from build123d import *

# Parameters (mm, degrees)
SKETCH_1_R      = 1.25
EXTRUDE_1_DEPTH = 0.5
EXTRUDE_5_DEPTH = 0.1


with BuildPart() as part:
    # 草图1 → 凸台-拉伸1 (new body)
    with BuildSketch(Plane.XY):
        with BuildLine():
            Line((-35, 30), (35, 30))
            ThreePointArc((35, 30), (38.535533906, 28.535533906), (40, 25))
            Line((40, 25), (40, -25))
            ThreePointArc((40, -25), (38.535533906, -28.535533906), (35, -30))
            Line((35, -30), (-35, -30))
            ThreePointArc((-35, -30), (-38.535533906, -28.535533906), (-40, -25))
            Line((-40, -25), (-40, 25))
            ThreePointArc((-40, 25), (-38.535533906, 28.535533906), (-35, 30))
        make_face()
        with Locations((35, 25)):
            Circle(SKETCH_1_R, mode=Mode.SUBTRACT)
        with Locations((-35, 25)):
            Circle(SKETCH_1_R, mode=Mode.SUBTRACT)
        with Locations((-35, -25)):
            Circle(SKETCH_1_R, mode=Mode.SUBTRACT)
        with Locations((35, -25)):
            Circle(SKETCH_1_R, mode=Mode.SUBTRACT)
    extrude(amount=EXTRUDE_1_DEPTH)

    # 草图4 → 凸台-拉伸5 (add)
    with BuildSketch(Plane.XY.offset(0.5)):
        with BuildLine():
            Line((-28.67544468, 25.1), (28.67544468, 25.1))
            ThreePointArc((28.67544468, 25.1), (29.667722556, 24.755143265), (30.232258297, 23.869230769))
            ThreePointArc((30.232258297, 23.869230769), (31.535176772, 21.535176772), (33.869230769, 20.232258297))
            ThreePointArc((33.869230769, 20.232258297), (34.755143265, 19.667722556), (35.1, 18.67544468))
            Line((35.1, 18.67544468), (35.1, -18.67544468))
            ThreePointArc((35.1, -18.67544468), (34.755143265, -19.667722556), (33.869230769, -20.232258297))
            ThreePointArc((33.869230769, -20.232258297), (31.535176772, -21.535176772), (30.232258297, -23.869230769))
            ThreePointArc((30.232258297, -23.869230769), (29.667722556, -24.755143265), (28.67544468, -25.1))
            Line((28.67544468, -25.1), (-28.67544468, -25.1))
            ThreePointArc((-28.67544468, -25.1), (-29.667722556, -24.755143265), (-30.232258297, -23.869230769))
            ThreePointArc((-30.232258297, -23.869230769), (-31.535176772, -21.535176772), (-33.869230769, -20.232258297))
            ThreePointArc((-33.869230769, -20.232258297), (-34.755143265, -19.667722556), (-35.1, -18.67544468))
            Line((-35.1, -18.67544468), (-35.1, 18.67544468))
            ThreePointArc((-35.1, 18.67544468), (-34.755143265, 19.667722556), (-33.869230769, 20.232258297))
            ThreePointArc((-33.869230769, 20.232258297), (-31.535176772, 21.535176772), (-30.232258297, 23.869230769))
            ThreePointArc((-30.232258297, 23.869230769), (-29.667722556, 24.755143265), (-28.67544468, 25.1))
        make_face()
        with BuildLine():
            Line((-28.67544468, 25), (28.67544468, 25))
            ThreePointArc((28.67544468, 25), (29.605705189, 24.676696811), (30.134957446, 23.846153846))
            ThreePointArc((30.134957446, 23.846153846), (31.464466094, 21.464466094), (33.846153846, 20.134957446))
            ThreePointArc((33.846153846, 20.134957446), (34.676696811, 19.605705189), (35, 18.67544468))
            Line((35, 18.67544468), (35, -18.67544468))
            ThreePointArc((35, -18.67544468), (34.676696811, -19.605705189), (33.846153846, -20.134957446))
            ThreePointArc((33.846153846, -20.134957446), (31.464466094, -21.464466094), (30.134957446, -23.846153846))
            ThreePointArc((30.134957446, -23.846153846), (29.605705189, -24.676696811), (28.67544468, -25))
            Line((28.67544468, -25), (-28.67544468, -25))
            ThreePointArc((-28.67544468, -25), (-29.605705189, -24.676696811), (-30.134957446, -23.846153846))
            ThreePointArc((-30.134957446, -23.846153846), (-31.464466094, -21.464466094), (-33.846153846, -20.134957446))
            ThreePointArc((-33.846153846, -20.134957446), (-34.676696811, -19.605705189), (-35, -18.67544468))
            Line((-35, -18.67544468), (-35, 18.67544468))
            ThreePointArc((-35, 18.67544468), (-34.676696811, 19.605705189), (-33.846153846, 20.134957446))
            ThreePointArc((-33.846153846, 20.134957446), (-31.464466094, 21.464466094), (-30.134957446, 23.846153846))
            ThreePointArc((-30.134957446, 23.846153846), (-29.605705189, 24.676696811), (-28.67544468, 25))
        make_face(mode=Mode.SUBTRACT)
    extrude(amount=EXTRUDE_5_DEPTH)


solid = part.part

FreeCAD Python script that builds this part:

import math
import FreeCAD as App
import Part
import Sketcher

V = App.Vector

doc = App.newDocument("Part")
params = doc.addObject("Spreadsheet::Sheet", "Params")
for row, (alias, value) in enumerate([
    ("sketch1_radius", "5 mm"),
    ("sketch1_diameter", "2.5 mm"),
    ("sketch1_width", "70 mm"),
    ("sketch1_height", "50 mm"),
    ("pad1_length", "0.5 mm"),
    ("sketch2_radius", "5 mm"),
    ("sketch2_radius2", "1.6 mm"),
    ("sketch2_radius3", "4.9 mm"),
    ("pad2_length", "0.1 mm"),
], start=1):
    params.set(f"A{row}", alias)
    params.set(f"B{row}", "=" + value)
    params.setAlias(f"B{row}", alias)

body = doc.addObject("PartDesign::Body", "Body")

sketch1 = body.newObject("Sketcher::SketchObject", "Sketch")
sketch1.AttachmentSupport = (doc.getObject("XY_Plane"), [""])
sketch1.MapMode = "FlatFace"
sketch1.addGeometry([
    Part.LineSegment(V(35, 30, 0), V(-35, 30, 0)),
    Part.ArcOfCircle(Part.Circle(V(-35, 25, 0), V(0, 0, 1), 5), math.radians(90), math.radians(180)),
    Part.LineSegment(V(-40, 25, 0), V(-40, -25, 0)),
    Part.ArcOfCircle(Part.Circle(V(-35, -25, 0), V(0, 0, 1), 5), math.radians(180), math.radians(270)),
    Part.LineSegment(V(-35, -30, 0), V(35, -30, 0)),
    Part.ArcOfCircle(Part.Circle(V(35, -25, 0), V(0, 0, 1), 5), math.radians(-90), math.radians(0)),
    Part.LineSegment(V(40, -25, 0), V(40, 25, 0)),
    Part.ArcOfCircle(Part.Circle(V(35, 25, 0), V(0, 0, 1), 5), math.radians(0), math.radians(90)),
    Part.Circle(V(35, -25, 0), V(0, 0, 1), 1.25),
    Part.Circle(V(-35, -25, 0), V(0, 0, 1), 1.25),
    Part.Circle(V(35, 25, 0), V(0, 0, 1), 1.25),
    Part.Circle(V(-35, 25, 0), V(0, 0, 1), 1.25),
], False)
sketch1.addConstraint([
    Sketcher.Constraint("Tangent", 0, 2, 1, 1),
    Sketcher.Constraint("Tangent", 1, 2, 2, 1),
    Sketcher.Constraint("Tangent", 2, 2, 3, 1),
    Sketcher.Constraint("Tangent", 3, 2, 4, 1),
    Sketcher.Constraint("Tangent", 4, 2, 5, 1),
    Sketcher.Constraint("Tangent", 5, 2, 6, 1),
    Sketcher.Constraint("Tangent", 6, 2, 7, 1),
    Sketcher.Constraint("Tangent", 7, 2, 0, 1),
    Sketcher.Constraint("Horizontal", 0),
    Sketcher.Constraint("Vertical", 2),
    Sketcher.Constraint("Horizontal", 4),
    Sketcher.Constraint("Vertical", 6),
    Sketcher.Constraint("Coincident", 8, 3, 5, 3),
    Sketcher.Constraint("Coincident", 9, 3, 3, 3),
    Sketcher.Constraint("Coincident", 10, 3, 7, 3),
    Sketcher.Constraint("Coincident", 11, 3, 1, 3),
    Sketcher.Constraint("Equal", 1, 3),
    Sketcher.Constraint("Equal", 3, 5),
    Sketcher.Constraint("Equal", 5, 7),
    Sketcher.Constraint("Equal", 8, 9),
    Sketcher.Constraint("Equal", 9, 10),
    Sketcher.Constraint("Equal", 10, 11),
    Sketcher.Constraint("Symmetric", 1, 3, 5, 3, -1, 1),
    Sketcher.Constraint("Radius", 1, 5.0),
    Sketcher.Constraint("Diameter", 8, 2.5),
    Sketcher.Constraint("DistanceX", 0, 2, 0, 1, 70.0),
    Sketcher.Constraint("DistanceY", 2, 2, 2, 1, 50.0),
])
sketch1.setExpression("Constraints[23]", "Params.sketch1_radius")
sketch1.setExpression("Constraints[24]", "Params.sketch1_diameter")
sketch1.setExpression("Constraints[25]", "Params.sketch1_width")
sketch1.setExpression("Constraints[26]", "Params.sketch1_height")
pad1 = body.newObject("PartDesign::Pad", "Pad")
pad1.Profile = sketch1
pad1.setExpression("Length", "Params.pad1_length")

sketch2 = body.newObject("Sketcher::SketchObject", "Sketch001")
sketch2.AttachmentSupport = (doc.getObject("XY_Plane"), [""])
sketch2.MapMode = "FlatFace"
sketch2.AttachmentOffset = App.Placement(V(0, 0, 0.5), App.Rotation())
sketch2.addGeometry([
    Part.LineSegment(V(28.675445, 25.1, 0), V(-28.675445, 25.1, 0)),
    Part.ArcOfCircle(Part.Circle(V(-28.675445, 23.5, 0), V(0, 0, 1), 1.6), math.radians(90), math.radians(166.657636)),
    Part.ArcOfCircle(Part.Circle(V(-35, 25, 0), V(0, 0, 1), 4.9), math.radians(-76.657636), math.radians(-13.342364)),
    Part.ArcOfCircle(Part.Circle(V(-33.5, 18.675445, 0), V(0, 0, 1), 1.6), math.radians(103.342364), math.radians(180)),
    Part.LineSegment(V(-35.1, 18.675445, 0), V(-35.1, -18.675445, 0)),
    Part.ArcOfCircle(Part.Circle(V(-33.5, -18.675445, 0), V(0, 0, 1), 1.6), math.radians(-180), math.radians(-103.342364)),
    Part.ArcOfCircle(Part.Circle(V(-35, -25, 0), V(0, 0, 1), 4.9), math.radians(13.342364), math.radians(76.657636)),
    Part.ArcOfCircle(Part.Circle(V(-28.675445, -23.5, 0), V(0, 0, 1), 1.6), math.radians(-166.657636), math.radians(-90)),
    Part.LineSegment(V(-28.675445, -25.1, 0), V(28.675445, -25.1, 0)),
    Part.ArcOfCircle(Part.Circle(V(28.675445, -23.5, 0), V(0, 0, 1), 1.6), math.radians(-90), math.radians(-13.342364)),
    Part.ArcOfCircle(Part.Circle(V(35, -25, 0), V(0, 0, 1), 4.9), math.radians(103.342364), math.radians(166.657636)),
    Part.ArcOfCircle(Part.Circle(V(33.5, -18.675445, 0), V(0, 0, 1), 1.6), math.radians(-76.657636), math.radians(0)),
    Part.LineSegment(V(35.1, -18.675445, 0), V(35.1, 18.675445, 0)),
    Part.ArcOfCircle(Part.Circle(V(33.5, 18.675445, 0), V(0, 0, 1), 1.6), math.radians(0), math.radians(76.657636)),
    Part.ArcOfCircle(Part.Circle(V(35, 25, 0), V(0, 0, 1), 4.9), math.radians(-166.657636), math.radians(-103.342364)),
    Part.ArcOfCircle(Part.Circle(V(28.675445, 23.5, 0), V(0, 0, 1), 1.6), math.radians(13.342364), math.radians(90)),
    Part.LineSegment(V(-28.675445, 25, 0), V(28.675445, 25, 0)),
    Part.ArcOfCircle(Part.Circle(V(28.675445, 23.5, 0), V(0, 0, 1), 1.5), math.radians(13.342364), math.radians(90)),
    Part.ArcOfCircle(Part.Circle(V(35, 25, 0), V(0, 0, 1), 5), math.radians(-166.657636), math.radians(-103.342364)),
    Part.ArcOfCircle(Part.Circle(V(33.5, 18.675445, 0), V(0, 0, 1), 1.5), math.radians(0), math.radians(76.657636)),
    Part.LineSegment(V(35, 18.675445, 0), V(35, -18.675445, 0)),
    Part.ArcOfCircle(Part.Circle(V(33.5, -18.675445, 0), V(0, 0, 1), 1.5), math.radians(-76.657636), math.radians(0)),
    Part.ArcOfCircle(Part.Circle(V(35, -25, 0), V(0, 0, 1), 5), math.radians(103.342364), math.radians(166.657636)),
    Part.ArcOfCircle(Part.Circle(V(28.675445, -23.5, 0), V(0, 0, 1), 1.5), math.radians(-90), math.radians(-13.342364)),
    Part.LineSegment(V(28.675445, -25, 0), V(-28.675445, -25, 0)),
    Part.ArcOfCircle(Part.Circle(V(-28.675445, -23.5, 0), V(0, 0, 1), 1.5), math.radians(-166.657636), math.radians(-90)),
    Part.ArcOfCircle(Part.Circle(V(-35, -25, 0), V(0, 0, 1), 5), math.radians(13.342364), math.radians(76.657636)),
    Part.ArcOfCircle(Part.Circle(V(-33.5, -18.675445, 0), V(0, 0, 1), 1.5), math.radians(180), math.radians(256.657636)),
    Part.LineSegment(V(-35, -18.675445, 0), V(-35, 18.675445, 0)),
    Part.ArcOfCircle(Part.Circle(V(-33.5, 18.675445, 0), V(0, 0, 1), 1.5), math.radians(103.342364), math.radians(180)),
    Part.ArcOfCircle(Part.Circle(V(-35, 25, 0), V(0, 0, 1), 5), math.radians(-76.657636), math.radians(-13.342364)),
    Part.ArcOfCircle(Part.Circle(V(-28.675445, 23.5, 0), V(0, 0, 1), 1.5), math.radians(90), math.radians(166.657636)),
], False)
sketch2.addConstraint([
    Sketcher.Constraint("Tangent", 0, 2, 1, 1),
    Sketcher.Constraint("Tangent", 1, 2, 2, 2),
    Sketcher.Constraint("Tangent", 2, 1, 3, 1),
    Sketcher.Constraint("Tangent", 3, 2, 4, 1),
    Sketcher.Constraint("Tangent", 4, 2, 5, 1),
    Sketcher.Constraint("Tangent", 5, 2, 6, 2),
    Sketcher.Constraint("Tangent", 6, 1, 7, 1),
    Sketcher.Constraint("Tangent", 7, 2, 8, 1),
    Sketcher.Constraint("Tangent", 8, 2, 9, 1),
    Sketcher.Constraint("Tangent", 9, 2, 10, 2),
    Sketcher.Constraint("Tangent", 10, 1, 11, 1),
    Sketcher.Constraint("Tangent", 11, 2, 12, 1),
    Sketcher.Constraint("Tangent", 12, 2, 13, 1),
    Sketcher.Constraint("Tangent", 13, 2, 14, 2),
    Sketcher.Constraint("Tangent", 14, 1, 15, 1),
    Sketcher.Constraint("Tangent", 15, 2, 0, 1),
    Sketcher.Constraint("Tangent", 16, 2, 17, 2),
    Sketcher.Constraint("Tangent", 17, 1, 18, 1),
    Sketcher.Constraint("Tangent", 18, 2, 19, 2),
    Sketcher.Constraint("Tangent", 19, 1, 20, 1),
    Sketcher.Constraint("Tangent", 20, 2, 21, 2),
    Sketcher.Constraint("Tangent", 21, 1, 22, 1),
    Sketcher.Constraint("Tangent", 22, 2, 23, 2),
    Sketcher.Constraint("Tangent", 23, 1, 24, 1),
    Sketcher.Constraint("Tangent", 24, 2, 25, 2),
    Sketcher.Constraint("Tangent", 25, 1, 26, 1),
    Sketcher.Constraint("Tangent", 26, 2, 27, 2),
    Sketcher.Constraint("Tangent", 27, 1, 28, 1),
    Sketcher.Constraint("Tangent", 28, 2, 29, 2),
    Sketcher.Constraint("Tangent", 29, 1, 30, 1),
    Sketcher.Constraint("Tangent", 30, 2, 31, 2),
    Sketcher.Constraint("Tangent", 31, 1, 16, 1),
    Sketcher.Constraint("Horizontal", 0),
    Sketcher.Constraint("Vertical", 4),
    Sketcher.Constraint("Horizontal", 8),
    Sketcher.Constraint("Vertical", 12),
    Sketcher.Constraint("Horizontal", 16),
    Sketcher.Constraint("Vertical", 20),
    Sketcher.Constraint("Horizontal", 24),
    Sketcher.Constraint("Vertical", 28),
    Sketcher.Constraint("Coincident", 17, 3, 15, 3),
    Sketcher.Constraint("Coincident", 18, 3, 14, 3),
    Sketcher.Constraint("Coincident", 19, 3, 13, 3),
    Sketcher.Constraint("Coincident", 21, 3, 11, 3),
    Sketcher.Constraint("Coincident", 22, 3, 10, 3),
    Sketcher.Constraint("Coincident", 23, 3, 9, 3),
    Sketcher.Constraint("Coincident", 25, 3, 7, 3),
    Sketcher.Constraint("Coincident", 26, 3, 6, 3),
    Sketcher.Constraint("Coincident", 27, 3, 5, 3),
    Sketcher.Constraint("Coincident", 29, 3, 3, 3),
    Sketcher.Constraint("Coincident", 30, 3, 2, 3),
    Sketcher.Constraint("Equal", 1, 3),
    Sketcher.Constraint("Equal", 3, 5),
    Sketcher.Constraint("Equal", 2, 6),
    Sketcher.Constraint("Equal", 5, 7),
    Sketcher.Constraint("Equal", 7, 9),
    Sketcher.Constraint("Equal", 6, 10),
    Sketcher.Constraint("Equal", 9, 11),
    Sketcher.Constraint("Equal", 11, 13),
    Sketcher.Constraint("Equal", 10, 14),
    Sketcher.Constraint("Equal", 13, 15),
    Sketcher.Constraint("Equal", 29, 31),
    Sketcher.Constraint("Symmetric", 1, 3, 9, 3, -1, 1),
    Sketcher.Constraint("Symmetric", 3, 3, 11, 3, -1, 1),
    Sketcher.Constraint("Symmetric", 6, 3, 14, 3, -1, 1),
    Sketcher.Constraint("Symmetric", 6, 3, 10, 3, -2),
    Sketcher.Constraint("Horizontal", 30, 3, 16, 2),
    Sketcher.Constraint("Vertical", 22, 3, 19, 1),
    Sketcher.Constraint("Radius", 18, 5.0),
    Sketcher.Constraint("Radius", 1, 1.6),
    Sketcher.Constraint("Radius", 2, 4.9),
    Sketcher.Constraint("DistanceX", 2, 3, -1, 1, 35.0),
    Sketcher.Constraint("DistanceY", -1, 1, 2, 3, 25.0),
])
sketch2.setExpression("Constraints[68]", "Params.sketch2_radius")
sketch2.setExpression("Constraints[69]", "Params.sketch2_radius2")
sketch2.setExpression("Constraints[70]", "Params.sketch2_radius3")
pad2 = body.newObject("PartDesign::Pad", "Pad001")
pad2.Profile = sketch2
pad2.setExpression("Length", "Params.pad2_length")

doc.recompute()
